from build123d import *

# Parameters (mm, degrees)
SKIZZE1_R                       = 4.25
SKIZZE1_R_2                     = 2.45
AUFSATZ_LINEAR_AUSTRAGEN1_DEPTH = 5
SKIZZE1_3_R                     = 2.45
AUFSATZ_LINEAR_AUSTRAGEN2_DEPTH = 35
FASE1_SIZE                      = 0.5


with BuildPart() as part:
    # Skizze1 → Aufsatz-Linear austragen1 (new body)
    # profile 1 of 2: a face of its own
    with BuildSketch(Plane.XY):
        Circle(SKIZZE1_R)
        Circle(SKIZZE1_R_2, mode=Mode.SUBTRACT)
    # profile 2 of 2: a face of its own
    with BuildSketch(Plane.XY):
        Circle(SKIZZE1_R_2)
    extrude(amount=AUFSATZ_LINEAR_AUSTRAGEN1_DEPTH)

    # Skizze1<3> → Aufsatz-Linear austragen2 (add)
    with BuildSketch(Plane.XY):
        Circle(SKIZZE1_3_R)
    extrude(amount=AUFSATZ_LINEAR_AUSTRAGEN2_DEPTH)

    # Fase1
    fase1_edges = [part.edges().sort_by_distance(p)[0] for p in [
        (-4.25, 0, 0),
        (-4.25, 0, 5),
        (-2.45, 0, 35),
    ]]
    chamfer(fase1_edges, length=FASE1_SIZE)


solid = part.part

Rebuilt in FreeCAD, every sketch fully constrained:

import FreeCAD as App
import Part
import Sketcher

V = App.Vector
Q = App.Units.Quantity


def edges_at(feature, points):
    """Names of the edges that pass closest to the given points."""
    edges = feature.Shape.Edges
    near = lambda p: min(range(len(edges)), key=lambda i: edges[i].distToShape(Part.Vertex(*p))[0])
    return sorted({f"Edge{near(p) + 1}" for p in points})

doc = App.newDocument("Part")
body = doc.addObject("PartDesign::Body", "Body")

sketch1 = body.newObject("Sketcher::SketchObject", "Sketch")
sketch1.AttachmentSupport = (doc.getObject("XY_Plane"), [""])
sketch1.MapMode = "FlatFace"
sketch1.addGeometry(Part.Circle(V(0, 0, 0), V(0, 0, 1), 4.2), False)
sketch1.addConstraint([
    Sketcher.Constraint("Coincident", 0, 3, -1, 1),
    Sketcher.Constraint("Diameter", 0, Q("8.5 mm")),
])
pad1 = body.newObject("PartDesign::Pad", "Pad")
pad1.Profile = sketch1
pad1.Length = 5

sketch2 = body.newObject("Sketcher::SketchObject", "Sketch001")
sketch2.AttachmentSupport = (doc.getObject("XY_Plane"), [""])
sketch2.MapMode = "FlatFace"
sketch2.addGeometry(Part.Circle(V(0, 0, 0), V(0, 0, 1), 2.5), False)
sketch2.addConstraint([
    Sketcher.Constraint("Coincident", 0, 3, -1, 1),
    Sketcher.Constraint("Diameter", 0, Q("4.9 mm")),
])
pad2 = body.newObject("PartDesign::Pad", "Pad001")
pad2.Profile = sketch2
pad2.Length = 35
doc.recompute()

chamfer = body.newObject("PartDesign::Chamfer", "Chamfer")
chamfer.Base = (pad2, edges_at(pad2, [(-4.25, 0, 0), (-4.25, 0, 5), (-2.45, 0, 35)]))
chamfer.Size = 0.5

doc.recompute()
